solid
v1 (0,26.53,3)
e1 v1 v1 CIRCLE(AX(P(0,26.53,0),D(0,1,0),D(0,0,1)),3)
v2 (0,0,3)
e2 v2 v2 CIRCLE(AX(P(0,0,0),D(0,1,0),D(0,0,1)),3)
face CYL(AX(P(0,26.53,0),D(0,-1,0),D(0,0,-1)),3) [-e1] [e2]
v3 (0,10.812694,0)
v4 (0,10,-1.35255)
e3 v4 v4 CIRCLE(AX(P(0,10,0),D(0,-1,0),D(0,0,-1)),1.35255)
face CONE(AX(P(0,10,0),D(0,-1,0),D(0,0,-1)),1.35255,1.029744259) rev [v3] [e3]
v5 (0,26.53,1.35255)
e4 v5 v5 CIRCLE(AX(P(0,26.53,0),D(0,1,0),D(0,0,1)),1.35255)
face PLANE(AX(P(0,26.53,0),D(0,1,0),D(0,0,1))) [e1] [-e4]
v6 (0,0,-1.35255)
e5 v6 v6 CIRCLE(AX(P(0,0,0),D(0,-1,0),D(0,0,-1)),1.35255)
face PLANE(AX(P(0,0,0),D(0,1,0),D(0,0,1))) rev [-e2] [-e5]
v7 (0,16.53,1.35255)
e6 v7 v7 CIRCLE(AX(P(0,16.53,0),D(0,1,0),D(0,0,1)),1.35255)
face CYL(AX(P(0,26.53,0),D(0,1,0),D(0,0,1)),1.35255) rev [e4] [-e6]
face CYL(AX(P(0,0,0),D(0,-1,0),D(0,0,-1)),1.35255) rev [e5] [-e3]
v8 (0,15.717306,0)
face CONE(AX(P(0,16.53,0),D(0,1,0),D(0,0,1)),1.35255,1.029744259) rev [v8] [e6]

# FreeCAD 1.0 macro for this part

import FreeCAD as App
import Part
import Sketcher
from FreeCAD import Vector

doc = App.newDocument("Part")
body = doc.addObject("PartDesign::Body", "Body")

# Sketch on XZ plane
sketch1 = body.newObject("Sketcher::SketchObject", "Sketch")
sketch1.AttachmentSupport = (doc.getObject("XZ_Plane"), [""])
sketch1.MapMode = "FlatFace"
sketch1.addGeometry(Part.Circle(Vector(0, 0, 0), Vector(0, 0, 1), 3), False)
sketch1.addConstraint([
    Sketcher.Constraint("Coincident", 0, 3, -1, 1),
    Sketcher.Constraint("Diameter", 0, 6.0),
])
pad1 = body.newObject("PartDesign::Pad", "Pad")
pad1.Profile = sketch1
pad1.Length = 26.53
pad1.Reversed = True

# Sketch on XZ plane
sketch2 = body.newObject("Sketcher::SketchObject", "Sketch001")
sketch2.AttachmentSupport = (doc.getObject("XZ_Plane"), [""])
sketch2.MapMode = "FlatFace"
sketch2.AttachmentOffset = App.Placement(Vector(0, 0, -26.53), App.Rotation())
sketch2.addGeometry(Part.Circle(Vector(0, 0, 0), Vector(0, 0, 1), 1.4), False)
sketch2.addConstraint([
    Sketcher.Constraint("Coincident", 0, 3, -1, 1),
    Sketcher.Constraint("Diameter", 0, 2.7051),
])
doc.recompute()
hole = body.newObject("PartDesign::Hole", "Hole")
hole.Profile = sketch2
hole.ThreadType = "None"
hole.Diameter = 2.7051
hole.DepthType = "Dimension"
hole.Depth = 10
hole.DrillPoint = "Angled"
hole.DrillPointAngle = 118
hole.Reversed = True

# Sketch on XZ plane
sketch3 = body.newObject("Sketcher::SketchObject", "Sketch002")
sketch3.AttachmentSupport = (doc.getObject("XZ_Plane"), [""])
sketch3.MapMode = "FlatFace"
sketch3.addGeometry(Part.Circle(Vector(0, 0, 0), Vector(0, 0, 1), 1.4), False)
sketch3.addConstraint([
    Sketcher.Constraint("Coincident", 0, 3, -1, 1),
    Sketcher.Constraint("Diameter", 0, 2.7051),
])
doc.recompute()
hole2 = body.newObject("PartDesign::Hole", "Hole001")
hole2.Profile = sketch3
hole2.ThreadType = "None"
hole2.Diameter = 2.7051
hole2.DepthType = "Dimension"
hole2.Depth = 10
hole2.DrillPoint = "Angled"
hole2.DrillPointAngle = 118

doc.recompute()
